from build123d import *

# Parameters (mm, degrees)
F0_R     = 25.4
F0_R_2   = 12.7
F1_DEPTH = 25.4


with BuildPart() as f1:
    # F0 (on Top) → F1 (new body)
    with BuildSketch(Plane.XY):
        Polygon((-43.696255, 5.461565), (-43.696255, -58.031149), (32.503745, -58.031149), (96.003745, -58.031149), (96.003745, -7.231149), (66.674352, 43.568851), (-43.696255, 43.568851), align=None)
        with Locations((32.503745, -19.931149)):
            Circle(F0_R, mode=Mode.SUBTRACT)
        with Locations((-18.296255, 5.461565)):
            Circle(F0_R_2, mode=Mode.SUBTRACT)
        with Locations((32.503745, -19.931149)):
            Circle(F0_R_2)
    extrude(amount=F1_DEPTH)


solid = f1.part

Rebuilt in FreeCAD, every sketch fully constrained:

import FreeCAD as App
import Part
import Sketcher
from FreeCAD import Vector
Q = App.Units.Quantity


def add_polygon(sketch, points):
    """Adds a closed chain of lines whose ends are joined by coincident constraints."""
    first, n = sketch.GeometryCount, len(points)
    for a, b in zip(points, points[1:] + points[:1]):
        sketch.addGeometry(Part.LineSegment(App.Vector(*a, 0), App.Vector(*b, 0)), False)
    for i in range(n):
        sketch.addConstraint(Sketcher.Constraint("Coincident", first + i, 2, first + (i + 1) % n, 1))

doc = App.newDocument("Part")
params = doc.addObject("Spreadsheet::Sheet", "Params")
for row, (alias, value) in enumerate([
    ("sketch1_diameter", "2 in"),
    ("sketch1_diameter2", "1 in"),
    ("sketch1_height", "2 in"),
    ("sketch1_height2", "4 in"),
    ("sketch1_width", "5.5 in"),
    ("pad1_length", "1 in"),
], start=1):
    params.set(f"A{row}", alias)
    params.set(f"B{row}", "=" + value)
    params.setAlias(f"B{row}", alias)

body = doc.addObject("PartDesign::Body", "Body")
body.AllowCompound = True

sketch1 = body.newObject("Sketcher::SketchObject", "Sketch")
sketch1.AttachmentSupport = (doc.getObject("XY_Plane"), [""])
sketch1.MapMode = "FlatFace"
add_polygon(sketch1, [(-44, -58), (96, -58), (96, -7), (67, 44), (-44, 44)])
sketch1.addGeometry(Part.Circle(Vector(33, -20, 0), Vector(0, 0, 1), 25), False)
sketch1.addGeometry(Part.Circle(Vector(-18, 5, 0), Vector(0, 0, 1), 13), False)
sketch1.addGeometry(Part.Circle(Vector(33, -20, 0), Vector(0, 0, 1), 13), False)
sketch1.addConstraint([
    Sketcher.Constraint("Horizontal", 0),
    Sketcher.Constraint("Vertical", 1),
    Sketcher.Constraint("Horizontal", 3),
    Sketcher.Constraint("Vertical", 4),
    Sketcher.Constraint("Coincident", 7, 3, 5, 3),
    Sketcher.Constraint("Equal", 6, 7),
    Sketcher.Constraint("Diameter", 5, Q("2 in")),
    Sketcher.Constraint("Diameter", 6, Q("1 in")),
    Sketcher.Constraint("DistanceY", 1, 1, 1, 2, Q("2 in")),
    Sketcher.Constraint("DistanceY", 4, 2, 4, 1, Q("4 in")),
    Sketcher.Constraint("DistanceX", 0, 1, 0, 2, Q("5.5 in")),
    Sketcher.Constraint("Angle", 2, Q("119.999999 deg")),
    Sketcher.Constraint("DistanceX", 6, 3, 5, 3, Q("2 in")),
    Sketcher.Constraint("DistanceX", 3, 2, 6, 3, Q("1 in")),
    Sketcher.Constraint("DistanceY", 0, 2, 5, 3, Q("1.5 in")),
    Sketcher.Constraint("DistanceY", 5, 3, -1, 1, Q("19.931149 mm")),
    Sketcher.Constraint("DistanceX", -1, 1, 2, 2, Q("66.674352 mm")),
    Sketcher.Constraint("DistanceY", -1, 1, 6, 3, Q("5.461565 mm")),
])
sketch1.setExpression("Constraints[11]", "Params.sketch1_diameter")
sketch1.setExpression("Constraints[12]", "Params.sketch1_diameter2")
sketch1.setExpression("Constraints[13]", "Params.sketch1_height")
sketch1.setExpression("Constraints[14]", "Params.sketch1_height2")
sketch1.setExpression("Constraints[15]", "Params.sketch1_width")
pad1 = body.newObject("PartDesign::Pad", "Pad")
pad1.Profile = sketch1
pad1.setExpression("Length", "Params.pad1_length")

doc.recompute()
